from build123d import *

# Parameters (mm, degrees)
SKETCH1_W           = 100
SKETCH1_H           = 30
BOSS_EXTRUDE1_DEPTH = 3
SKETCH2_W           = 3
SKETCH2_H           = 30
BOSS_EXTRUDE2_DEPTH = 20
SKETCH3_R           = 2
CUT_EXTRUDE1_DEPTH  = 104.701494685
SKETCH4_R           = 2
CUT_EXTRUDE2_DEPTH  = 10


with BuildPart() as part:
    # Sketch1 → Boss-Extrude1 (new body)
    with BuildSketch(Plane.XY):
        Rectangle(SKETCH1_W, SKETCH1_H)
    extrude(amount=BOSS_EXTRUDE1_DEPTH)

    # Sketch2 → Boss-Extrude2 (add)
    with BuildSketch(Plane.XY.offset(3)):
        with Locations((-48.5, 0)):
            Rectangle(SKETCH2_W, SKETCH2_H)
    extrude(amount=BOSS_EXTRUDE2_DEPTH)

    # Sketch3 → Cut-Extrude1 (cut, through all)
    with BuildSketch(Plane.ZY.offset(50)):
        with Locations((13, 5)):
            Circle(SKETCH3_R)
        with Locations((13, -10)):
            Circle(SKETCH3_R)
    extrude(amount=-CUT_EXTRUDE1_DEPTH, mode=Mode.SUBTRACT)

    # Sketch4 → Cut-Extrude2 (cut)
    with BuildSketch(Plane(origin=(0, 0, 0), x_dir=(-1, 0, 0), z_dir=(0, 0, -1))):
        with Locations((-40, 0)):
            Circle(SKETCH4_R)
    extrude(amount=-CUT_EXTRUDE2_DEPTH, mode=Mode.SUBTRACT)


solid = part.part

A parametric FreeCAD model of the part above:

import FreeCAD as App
import Part
import Sketcher
from FreeCAD import Vector
Q = App.Units.Quantity


def add_polygon(sketch, points):
    """Adds a closed chain of lines whose ends are joined by coincident constraints."""
    first, n = sketch.GeometryCount, len(points)
    for a, b in zip(points, points[1:] + points[:1]):
        sketch.addGeometry(Part.LineSegment(App.Vector(*a, 0), App.Vector(*b, 0)), False)
    for i in range(n):
        sketch.addConstraint(Sketcher.Constraint("Coincident", first + i, 2, first + (i + 1) % n, 1))

doc = App.newDocument("Part")
params = doc.addObject("Spreadsheet::Sheet", "Params")
for row, (alias, value) in enumerate([
    ("sketch1_width", "100 mm"),
    ("sketch1_height", "30 mm"),
    ("pad1_length", "3 mm"),
    ("sketch2_width", "3 mm"),
    ("sketch2_height", "30 mm"),
    ("pad2_length", "20 mm"),
    ("sketch3_diameter", "4 mm"),
    ("sketch4_diameter", "4 mm"),
    ("pocket2_length", "10 mm"),
], start=1):
    params.set(f"A{row}", alias)
    params.set(f"B{row}", "=" + value)
    params.setAlias(f"B{row}", alias)

body = doc.addObject("PartDesign::Body", "Body")

# Sketch on XY plane
sketch1 = doc.addObject("Sketcher::SketchObject", "Sketch")
body.addObject(sketch1)
sketch1.AttachmentSupport = (doc.XY_Plane, [""])
sketch1.MapMode = "FlatFace"
add_polygon(sketch1, [(-50, 15), (-50, -15), (50, -15), (50, 15)])  # lines 0-3
sketch1.addConstraint([
    Sketcher.Constraint("Vertical", 0),
    Sketcher.Constraint("Horizontal", 1),
    Sketcher.Constraint("Vertical", 2),
    Sketcher.Constraint("Horizontal", 3),
    Sketcher.Constraint("Symmetric", 0, 2, 2, 2, -1, 1),
    Sketcher.Constraint("DistanceX", 1, 1, 1, 2, Q("100 mm")),
    Sketcher.Constraint("DistanceY", 0, 2, 0, 1, Q("30 mm")),
])
sketch1.setExpression("Constraints[9]", "Params.sketch1_width")
sketch1.setExpression("Constraints[10]", "Params.sketch1_height")
pad1 = doc.addObject("PartDesign::Pad", "Pad")
body.addObject(pad1)
pad1.Profile = sketch1
pad1.setExpression("Length", "Params.pad1_length")

# Sketch on XY plane
sketch2 = doc.addObject("Sketcher::SketchObject", "Sketch001")
body.addObject(sketch2)
sketch2.AttachmentSupport = (doc.XY_Plane, [""])
sketch2.MapMode = "FlatFace"
sketch2.AttachmentOffset = App.Placement(Vector(0, 0, 3), App.Rotation())
add_polygon(sketch2, [(-50, 15), (-50, -15), (-47, -15), (-47, 15)])  # lines 0-3
sketch2.addConstraint([
    Sketcher.Constraint("Vertical", 0),
    Sketcher.Constraint("Horizontal", 1),
    Sketcher.Constraint("Vertical", 2),
    Sketcher.Constraint("Horizontal", 3),
    Sketcher.Constraint("DistanceX", 1, 1, 1, 2, Q("3 mm")),
    Sketcher.Constraint("DistanceY", 0, 2, 0, 1, Q("30 mm")),
    Sketcher.Constraint("DistanceX", 0, 2, -1, 1, Q("50 mm")),
    Sketcher.Constraint("DistanceY", 0, 2, -1, 1, Q("15 mm")),
])
sketch2.setExpression("Constraints[8]", "Params.sketch2_width")
sketch2.setExpression("Constraints[9]", "Params.sketch2_height")
pad2 = doc.addObject("PartDesign::Pad", "Pad001")
body.addObject(pad2)
pad2.Profile = sketch2
pad2.setExpression("Length", "Params.pad2_length")

# Sketch on YZ plane
sketch3 = doc.addObject("Sketcher::SketchObject", "Sketch002")
body.addObject(sketch3)
sketch3.AttachmentSupport = (doc.YZ_Plane, [""])
sketch3.MapMode = "FlatFace"
sketch3.AttachmentOffset = App.Placement(Vector(0, 0, -50), App.Rotation())
sketch3.addGeometry([
    Part.Circle(Vector(5, 13, 0), Vector(0, 0, 1), 2),
    Part.Circle(Vector(-10, 13, 0), Vector(0, 0, 1), 2),
], False)
sketch3.addConstraint([
    Sketcher.Constraint("Equal", 0, 1),
    Sketcher.Constraint("Horizontal", 0, 3, 1, 3),
    Sketcher.Constraint("Diameter", 0, Q("4 mm")),
    Sketcher.Constraint("DistanceX", -1, 1, 0, 3, Q("5 mm")),
    Sketcher.Constraint("DistanceY", -1, 1, 0, 3, Q("13 mm")),
    Sketcher.Constraint("DistanceX", 1, 3, -1, 1, Q("10 mm")),
])
sketch3.setExpression("Constraints[2]", "Params.sketch3_diameter")
pocket1 = doc.addObject("PartDesign::Pocket", "Pocket")
body.addObject(pocket1)
pocket1.Profile = sketch3
pocket1.Type = "ThroughAll"
pocket1.Reversed = True

# Sketch on XY plane
sketch4 = doc.addObject("Sketcher::SketchObject", "Sketch003")
body.addObject(sketch4)
sketch4.AttachmentSupport = (doc.XY_Plane, [""])
sketch4.MapMode = "FlatFace"
sketch4.addGeometry(Part.Circle(Vector(40, 0, 0), Vector(0, 0, 1), 2), False)
sketch4.addConstraint([
    Sketcher.Constraint("PointOnObject", 0, 3, -1),
    Sketcher.Constraint("Diameter", 0, Q("4 mm")),
    Sketcher.Constraint("DistanceX", -1, 1, 0, 3, Q("40 mm")),
])
sketch4.setExpression("Constraints[1]", "Params.sketch4_diameter")
pocket2 = doc.addObject("PartDesign::Pocket", "Pocket001")
body.addObject(pocket2)
pocket2.Profile = sketch4
pocket2.setExpression("Length", "Params.pocket2_length")
pocket2.Reversed = True

doc.recompute()
